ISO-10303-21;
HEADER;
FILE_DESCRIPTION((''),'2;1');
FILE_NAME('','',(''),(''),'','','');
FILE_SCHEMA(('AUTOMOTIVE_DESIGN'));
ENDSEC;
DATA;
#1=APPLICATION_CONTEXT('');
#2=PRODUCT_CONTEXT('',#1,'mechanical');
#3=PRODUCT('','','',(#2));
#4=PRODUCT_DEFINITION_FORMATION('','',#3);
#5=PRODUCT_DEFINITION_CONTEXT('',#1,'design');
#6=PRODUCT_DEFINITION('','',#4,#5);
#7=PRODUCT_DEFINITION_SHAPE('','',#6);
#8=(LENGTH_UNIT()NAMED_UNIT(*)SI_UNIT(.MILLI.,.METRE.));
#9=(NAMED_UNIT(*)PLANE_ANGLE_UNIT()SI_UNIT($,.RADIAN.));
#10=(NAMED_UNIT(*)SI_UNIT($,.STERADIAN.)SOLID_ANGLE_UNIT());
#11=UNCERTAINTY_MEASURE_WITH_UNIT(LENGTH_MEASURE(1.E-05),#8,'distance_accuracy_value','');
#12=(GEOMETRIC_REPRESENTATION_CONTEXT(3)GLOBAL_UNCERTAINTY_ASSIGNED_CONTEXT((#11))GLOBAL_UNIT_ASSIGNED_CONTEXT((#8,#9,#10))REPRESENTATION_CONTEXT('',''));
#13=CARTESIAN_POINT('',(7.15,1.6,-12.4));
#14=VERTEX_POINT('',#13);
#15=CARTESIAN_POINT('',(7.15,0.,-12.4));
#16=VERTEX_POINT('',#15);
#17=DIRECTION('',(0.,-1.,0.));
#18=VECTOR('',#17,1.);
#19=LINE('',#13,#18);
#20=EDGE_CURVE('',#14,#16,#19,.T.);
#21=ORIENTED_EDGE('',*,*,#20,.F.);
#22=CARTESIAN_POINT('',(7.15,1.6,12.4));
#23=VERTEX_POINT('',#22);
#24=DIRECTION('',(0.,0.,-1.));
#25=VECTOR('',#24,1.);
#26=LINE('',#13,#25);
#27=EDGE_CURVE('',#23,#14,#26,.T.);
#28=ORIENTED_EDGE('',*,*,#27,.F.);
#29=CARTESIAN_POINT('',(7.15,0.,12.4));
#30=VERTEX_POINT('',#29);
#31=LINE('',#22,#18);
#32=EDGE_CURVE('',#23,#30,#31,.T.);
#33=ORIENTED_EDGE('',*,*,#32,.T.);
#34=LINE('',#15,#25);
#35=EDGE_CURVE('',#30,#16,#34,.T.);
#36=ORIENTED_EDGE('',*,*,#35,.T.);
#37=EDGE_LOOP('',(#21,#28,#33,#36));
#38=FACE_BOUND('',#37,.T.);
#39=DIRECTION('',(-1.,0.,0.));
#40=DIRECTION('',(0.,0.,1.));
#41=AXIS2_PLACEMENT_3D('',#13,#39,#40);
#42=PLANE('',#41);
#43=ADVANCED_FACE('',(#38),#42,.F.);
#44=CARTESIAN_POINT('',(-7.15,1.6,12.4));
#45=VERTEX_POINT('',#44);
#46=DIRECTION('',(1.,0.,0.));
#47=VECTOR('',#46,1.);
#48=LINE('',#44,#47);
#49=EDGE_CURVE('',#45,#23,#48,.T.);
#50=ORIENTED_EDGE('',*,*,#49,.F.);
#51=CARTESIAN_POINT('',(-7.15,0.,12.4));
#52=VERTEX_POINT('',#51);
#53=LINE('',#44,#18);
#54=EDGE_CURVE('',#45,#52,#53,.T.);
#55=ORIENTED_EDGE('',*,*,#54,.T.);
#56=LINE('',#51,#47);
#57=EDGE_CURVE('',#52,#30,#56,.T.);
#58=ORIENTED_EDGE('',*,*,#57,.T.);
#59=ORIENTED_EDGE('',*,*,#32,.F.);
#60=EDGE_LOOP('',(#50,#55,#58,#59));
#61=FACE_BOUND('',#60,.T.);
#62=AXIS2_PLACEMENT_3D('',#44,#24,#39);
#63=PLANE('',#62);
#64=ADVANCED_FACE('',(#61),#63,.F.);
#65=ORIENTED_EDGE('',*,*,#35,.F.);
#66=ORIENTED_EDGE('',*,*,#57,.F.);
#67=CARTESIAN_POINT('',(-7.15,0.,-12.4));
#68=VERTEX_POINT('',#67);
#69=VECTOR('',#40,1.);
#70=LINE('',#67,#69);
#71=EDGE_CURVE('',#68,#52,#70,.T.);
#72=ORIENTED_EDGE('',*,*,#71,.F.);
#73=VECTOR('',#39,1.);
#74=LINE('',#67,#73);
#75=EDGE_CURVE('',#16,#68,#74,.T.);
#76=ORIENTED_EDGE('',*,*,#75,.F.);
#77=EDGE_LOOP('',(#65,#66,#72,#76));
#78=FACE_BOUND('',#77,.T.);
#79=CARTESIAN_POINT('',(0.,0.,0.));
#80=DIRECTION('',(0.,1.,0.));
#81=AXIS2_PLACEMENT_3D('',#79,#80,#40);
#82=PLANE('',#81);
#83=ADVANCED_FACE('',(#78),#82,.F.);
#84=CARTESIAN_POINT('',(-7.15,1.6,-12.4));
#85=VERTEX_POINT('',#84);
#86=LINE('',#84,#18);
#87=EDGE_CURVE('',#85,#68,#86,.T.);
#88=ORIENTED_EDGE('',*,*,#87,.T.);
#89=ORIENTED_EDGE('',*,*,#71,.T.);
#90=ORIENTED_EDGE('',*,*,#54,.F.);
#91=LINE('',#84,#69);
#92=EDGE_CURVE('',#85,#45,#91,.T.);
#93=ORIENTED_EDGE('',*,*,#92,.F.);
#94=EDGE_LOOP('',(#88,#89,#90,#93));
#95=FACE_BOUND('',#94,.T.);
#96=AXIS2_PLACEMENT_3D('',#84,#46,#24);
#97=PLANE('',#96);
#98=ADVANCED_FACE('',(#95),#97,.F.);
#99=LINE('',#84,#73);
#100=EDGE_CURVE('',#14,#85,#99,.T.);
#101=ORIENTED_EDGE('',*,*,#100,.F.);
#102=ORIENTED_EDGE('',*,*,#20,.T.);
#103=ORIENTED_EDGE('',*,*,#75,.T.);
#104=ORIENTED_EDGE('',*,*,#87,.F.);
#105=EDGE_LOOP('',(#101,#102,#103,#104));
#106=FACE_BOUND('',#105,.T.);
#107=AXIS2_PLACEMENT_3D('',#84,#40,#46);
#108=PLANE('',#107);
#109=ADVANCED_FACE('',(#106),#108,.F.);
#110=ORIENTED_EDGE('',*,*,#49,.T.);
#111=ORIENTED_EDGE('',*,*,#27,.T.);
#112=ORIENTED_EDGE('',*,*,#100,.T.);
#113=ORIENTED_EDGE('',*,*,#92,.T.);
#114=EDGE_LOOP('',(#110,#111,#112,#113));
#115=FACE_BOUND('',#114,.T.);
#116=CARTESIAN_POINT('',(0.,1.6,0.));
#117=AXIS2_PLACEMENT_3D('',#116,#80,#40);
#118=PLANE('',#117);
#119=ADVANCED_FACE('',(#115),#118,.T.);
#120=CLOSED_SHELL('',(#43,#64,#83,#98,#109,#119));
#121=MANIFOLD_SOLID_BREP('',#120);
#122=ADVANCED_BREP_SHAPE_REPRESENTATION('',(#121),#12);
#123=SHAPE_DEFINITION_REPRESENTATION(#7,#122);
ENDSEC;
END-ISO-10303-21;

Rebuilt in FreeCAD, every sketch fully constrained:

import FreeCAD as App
import Part
import Sketcher

V = App.Vector
Q = App.Units.Quantity

doc = App.newDocument("Part")
body = doc.addObject("PartDesign::Body", "Body")

# Sketch on XZ plane
sketch1 = body.newObject("Sketcher::SketchObject", "Sketch")
sketch1.AttachmentSupport = (doc.getObject("XZ_Plane"), [""])
sketch1.MapMode = "FlatFace"
sketch1.addGeometry([
    Part.LineSegment(V(-7, -12, 0), V(-7, 12, 0)),
    Part.LineSegment(V(-7, 12, 0), V(7, 12, 0)),
    Part.LineSegment(V(7, 12, 0), V(7, -12, 0)),
    Part.LineSegment(V(7, -12, 0), V(-7, -12, 0)),
], False)
sketch1.addConstraint([
    Sketcher.Constraint("Coincident", 0, 2, 1, 1),
    Sketcher.Constraint("Coincident", 1, 2, 2, 1),
    Sketcher.Constraint("Coincident", 2, 2, 3, 1),
    Sketcher.Constraint("Coincident", 3, 2, 0, 1),
    Sketcher.Constraint("Vertical", 0),
    Sketcher.Constraint("Horizontal", 1),
    Sketcher.Constraint("Vertical", 2),
    Sketcher.Constraint("Horizontal", 3),
    Sketcher.Constraint("Symmetric", 0, 2, 2, 2, -1, 1),
    Sketcher.Constraint("DistanceX", 1, 1, 1, 2, Q("14.3 mm")),
    Sketcher.Constraint("DistanceY", 0, 1, 0, 2, Q("24.8 mm")),
])
pad1 = body.newObject("PartDesign::Pad", "Pad")
pad1.Profile = sketch1
pad1.Length = 1.6
pad1.Reversed = True

doc.recompute()
